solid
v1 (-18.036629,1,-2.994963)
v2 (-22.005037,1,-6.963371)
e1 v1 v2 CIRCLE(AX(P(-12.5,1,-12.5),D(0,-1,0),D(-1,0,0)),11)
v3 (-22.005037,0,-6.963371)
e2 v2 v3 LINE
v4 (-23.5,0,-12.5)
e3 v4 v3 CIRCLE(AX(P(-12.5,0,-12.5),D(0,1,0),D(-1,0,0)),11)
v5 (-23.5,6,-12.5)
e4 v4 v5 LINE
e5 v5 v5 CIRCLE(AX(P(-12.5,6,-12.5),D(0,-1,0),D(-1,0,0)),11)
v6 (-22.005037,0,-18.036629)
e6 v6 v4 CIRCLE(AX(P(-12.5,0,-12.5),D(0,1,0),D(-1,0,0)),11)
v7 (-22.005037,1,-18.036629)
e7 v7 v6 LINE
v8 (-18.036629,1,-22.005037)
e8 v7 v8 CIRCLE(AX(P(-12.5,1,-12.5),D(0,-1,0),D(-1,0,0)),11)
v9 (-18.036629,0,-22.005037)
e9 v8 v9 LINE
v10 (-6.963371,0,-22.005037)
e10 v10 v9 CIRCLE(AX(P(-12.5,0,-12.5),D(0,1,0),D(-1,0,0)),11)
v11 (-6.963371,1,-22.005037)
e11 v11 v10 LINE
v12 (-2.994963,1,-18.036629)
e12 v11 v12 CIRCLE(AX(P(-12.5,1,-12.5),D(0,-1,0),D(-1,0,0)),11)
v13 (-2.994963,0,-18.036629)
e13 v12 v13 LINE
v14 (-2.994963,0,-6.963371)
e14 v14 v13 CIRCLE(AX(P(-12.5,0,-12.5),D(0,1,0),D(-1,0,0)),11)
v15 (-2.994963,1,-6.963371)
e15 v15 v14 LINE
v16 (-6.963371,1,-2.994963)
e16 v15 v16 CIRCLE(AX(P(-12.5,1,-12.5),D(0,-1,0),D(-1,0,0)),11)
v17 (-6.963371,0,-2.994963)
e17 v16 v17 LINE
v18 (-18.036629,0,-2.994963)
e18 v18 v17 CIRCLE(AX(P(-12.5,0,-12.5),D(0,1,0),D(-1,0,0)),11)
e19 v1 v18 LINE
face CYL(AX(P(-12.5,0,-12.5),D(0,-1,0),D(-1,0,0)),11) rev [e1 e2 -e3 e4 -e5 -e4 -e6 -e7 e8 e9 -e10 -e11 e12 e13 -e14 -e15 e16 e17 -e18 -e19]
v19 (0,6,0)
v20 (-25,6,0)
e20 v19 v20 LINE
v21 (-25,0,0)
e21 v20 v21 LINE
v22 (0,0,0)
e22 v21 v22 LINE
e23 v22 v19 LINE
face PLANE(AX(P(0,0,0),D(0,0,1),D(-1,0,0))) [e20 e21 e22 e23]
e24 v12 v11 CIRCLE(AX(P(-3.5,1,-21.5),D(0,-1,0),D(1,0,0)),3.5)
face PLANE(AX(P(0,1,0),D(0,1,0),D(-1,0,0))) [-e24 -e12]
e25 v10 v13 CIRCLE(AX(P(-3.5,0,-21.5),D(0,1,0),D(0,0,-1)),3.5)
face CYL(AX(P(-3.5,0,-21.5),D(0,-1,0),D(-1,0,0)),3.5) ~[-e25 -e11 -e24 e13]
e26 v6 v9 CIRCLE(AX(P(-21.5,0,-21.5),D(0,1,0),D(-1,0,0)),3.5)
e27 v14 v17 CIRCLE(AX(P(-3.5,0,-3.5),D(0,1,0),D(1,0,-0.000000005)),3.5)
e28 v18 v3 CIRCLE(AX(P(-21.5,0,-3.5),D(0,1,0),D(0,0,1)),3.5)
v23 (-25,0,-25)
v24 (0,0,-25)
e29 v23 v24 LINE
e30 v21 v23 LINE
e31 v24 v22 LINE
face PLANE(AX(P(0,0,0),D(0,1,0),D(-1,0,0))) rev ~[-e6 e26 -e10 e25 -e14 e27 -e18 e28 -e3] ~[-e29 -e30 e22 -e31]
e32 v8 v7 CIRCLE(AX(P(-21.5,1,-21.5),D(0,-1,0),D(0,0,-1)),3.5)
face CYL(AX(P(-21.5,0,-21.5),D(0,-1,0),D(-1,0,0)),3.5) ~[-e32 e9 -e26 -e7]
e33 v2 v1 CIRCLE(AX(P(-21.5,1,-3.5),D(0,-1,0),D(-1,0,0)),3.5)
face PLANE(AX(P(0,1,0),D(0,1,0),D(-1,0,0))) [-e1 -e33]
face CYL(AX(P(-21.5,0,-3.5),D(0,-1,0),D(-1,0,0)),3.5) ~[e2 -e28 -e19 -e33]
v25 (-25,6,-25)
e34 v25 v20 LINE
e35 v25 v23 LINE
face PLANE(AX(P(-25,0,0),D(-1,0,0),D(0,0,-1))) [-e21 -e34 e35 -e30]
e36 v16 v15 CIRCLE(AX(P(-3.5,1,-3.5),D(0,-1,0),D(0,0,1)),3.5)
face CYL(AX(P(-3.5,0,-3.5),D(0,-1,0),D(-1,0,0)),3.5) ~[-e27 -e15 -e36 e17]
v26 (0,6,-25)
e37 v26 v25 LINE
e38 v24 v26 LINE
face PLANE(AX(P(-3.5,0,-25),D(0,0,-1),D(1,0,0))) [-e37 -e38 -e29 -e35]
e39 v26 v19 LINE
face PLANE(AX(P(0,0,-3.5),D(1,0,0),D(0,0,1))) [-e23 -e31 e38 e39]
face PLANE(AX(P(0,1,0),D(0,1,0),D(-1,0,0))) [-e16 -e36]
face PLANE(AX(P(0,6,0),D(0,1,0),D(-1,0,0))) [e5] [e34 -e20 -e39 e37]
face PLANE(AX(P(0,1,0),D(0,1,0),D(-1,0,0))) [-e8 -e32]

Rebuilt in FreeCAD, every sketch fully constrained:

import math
import FreeCAD as App
import Part
import Sketcher

V = App.Vector
Q = App.Units.Quantity


def add_polygon(sketch, points):
    """Adds a closed chain of lines whose ends are joined by coincident constraints."""
    first, n = sketch.GeometryCount, len(points)
    for a, b in zip(points, points[1:] + points[:1]):
        sketch.addGeometry(Part.LineSegment(App.Vector(*a, 0), App.Vector(*b, 0)), False)
    for i in range(n):
        sketch.addConstraint(Sketcher.Constraint("Coincident", first + i, 2, first + (i + 1) % n, 1))

doc = App.newDocument("Part")
body = doc.addObject("PartDesign::Body", "Body")

# Sketch on XZ plane
sketch1 = body.newObject("Sketcher::SketchObject", "Sketch")
sketch1.AttachmentSupport = (doc.getObject("XZ_Plane"), [""])
sketch1.MapMode = "FlatFace"
add_polygon(sketch1, [(0, 0), (0, -25), (-25, -25), (-25, 0)])  # lines 0-3
sketch1.addGeometry(Part.Circle(V(-12, -12, 0), V(0, 0, 1), 11), False)  # 4
sketch1.addConstraint(Sketcher.Constraint("Vertical", 0))
sketch1.addConstraint(Sketcher.Constraint("Horizontal", 1))
sketch1.addConstraint(Sketcher.Constraint("Vertical", 2))
sketch1.addConstraint(Sketcher.Constraint("Horizontal", 3))
sketch1.addConstraint(Sketcher.Constraint("Coincident", 3, 2, -1, 1))
sketch1.addConstraint(Sketcher.Constraint("Equal", 3, 0))
sketch1.addConstraint(Sketcher.Constraint("Diameter", 4, Q("22 mm")))
sketch1.addConstraint(Sketcher.Constraint("DistanceX", 1, 2, 1, 1, Q("25 mm")))
sketch1.addConstraint(Sketcher.Constraint("DistanceX", 4, 3, -1, 1, Q("12.5 mm")))
sketch1.addConstraint(Sketcher.Constraint("DistanceY", 4, 3, -1, 1, Q("12.5 mm")))
pad1 = body.newObject("PartDesign::Pad", "Pad")
pad1.Profile = sketch1
pad1.Length = 6
pad1.Reversed = True

# Sketch on XZ plane
sketch2 = body.newObject("Sketcher::SketchObject", "Sketch001")
sketch2.AttachmentSupport = (doc.getObject("XZ_Plane"), [""])
sketch2.MapMode = "FlatFace"
sketch2.addGeometry(Part.LineSegment(V(-3.5, 0, 0), V(0, 0, 0)), False)
sketch2.addGeometry(Part.LineSegment(V(0, 0, 0), V(0, -3.5, 0)), False)
sketch2.addGeometry(Part.ArcOfCircle(Part.Circle(V(-3.5, -3.5, 0), V(0, 0, 1), 3.5), math.radians(90), math.radians(360)), False)
sketch2.addGeometry(Part.LineSegment(V(-25, 0, 0), V(-21.5, 0, 0)), False)
sketch2.addGeometry(Part.ArcOfCircle(Part.Circle(V(-21.5, -3.5, 0), V(0, 0, 1), 3.5), math.radians(180), math.radians(450)), False)
sketch2.addGeometry(Part.LineSegment(V(-25, -3.5, 0), V(-25, 0, 0)), False)
sketch2.addGeometry(Part.LineSegment(V(0, -25, 0), V(-3.5, -25, 0)), False)
sketch2.addGeometry(Part.ArcOfCircle(Part.Circle(V(-3.5, -21.5, 0), V(0, 0, 1), 3.5), math.radians(0), math.radians(270)), False)
sketch2.addGeometry(Part.LineSegment(V(0, -21.5, 0), V(0, -25, 0)), False)
sketch2.addGeometry(Part.LineSegment(V(-21.5, -25, 0), V(-25, -25, 0)), False)
sketch2.addGeometry(Part.LineSegment(V(-25, -25, 0), V(-25, -21.5, 0)), False)
sketch2.addGeometry(Part.ArcOfCircle(Part.Circle(V(-21.5, -21.5, 0), V(0, 0, 1), 3.5), math.radians(-90), math.radians(180)), False)
sketch2.addConstraint(Sketcher.Constraint("Coincident", 0, 2, 1, 1))
sketch2.addConstraint(Sketcher.Constraint("Tangent", 1, 2, 2, 2))
sketch2.addConstraint(Sketcher.Constraint("Tangent", 2, 1, 0, 1))
sketch2.addConstraint(Sketcher.Constraint("Tangent", 3, 2, 4, 2))
sketch2.addConstraint(Sketcher.Constraint("Tangent", 4, 1, 5, 1))
sketch2.addConstraint(Sketcher.Constraint("Coincident", 5, 2, 3, 1))
sketch2.addConstraint(Sketcher.Constraint("Tangent", 6, 2, 7, 2))
sketch2.addConstraint(Sketcher.Constraint("Tangent", 7, 1, 8, 1))
sketch2.addConstraint(Sketcher.Constraint("Coincident", 8, 2, 6, 1))
sketch2.addConstraint(Sketcher.Constraint("Coincident", 9, 2, 10, 1))
sketch2.addConstraint(Sketcher.Constraint("Tangent", 10, 2, 11, 2))
sketch2.addConstraint(Sketcher.Constraint("Tangent", 11, 1, 9, 1))
sketch2.addConstraint(Sketcher.Constraint("Horizontal", 0))
sketch2.addConstraint(Sketcher.Constraint("Vertical", 1))
sketch2.addConstraint(Sketcher.Constraint("Horizontal", 3))
sketch2.addConstraint(Sketcher.Constraint("Vertical", 5))
sketch2.addConstraint(Sketcher.Constraint("Horizontal", 6))
sketch2.addConstraint(Sketcher.Constraint("Vertical", 8))
sketch2.addConstraint(Sketcher.Constraint("Horizontal", 9))
sketch2.addConstraint(Sketcher.Constraint("Vertical", 10))
sketch2.addConstraint(Sketcher.Constraint("Coincident", 0, 2, -1, 1))
sketch2.addConstraint(Sketcher.Constraint("Equal", 2, 4))
sketch2.addConstraint(Sketcher.Constraint("Equal", 4, 7))
sketch2.addConstraint(Sketcher.Constraint("Equal", 7, 11))
sketch2.addConstraint(Sketcher.Constraint("PointOnObject", 3, 2, -1))
sketch2.addConstraint(Sketcher.Constraint("PointOnObject", 7, 1, -2))
sketch2.addConstraint(Sketcher.Constraint("Horizontal", 7, 3, 11, 3))
sketch2.addConstraint(Sketcher.Constraint("Vertical", 4, 3, 11, 3))
sketch2.addConstraint(Sketcher.Constraint("Radius", 2, Q("3.5 mm")))
sketch2.addConstraint(Sketcher.Constraint("DistanceX", 4, 1, -1, 1, Q("25 mm")))
sketch2.addConstraint(Sketcher.Constraint("DistanceY", 6, 2, -1, 1, Q("25 mm")))
pad2 = body.newObject("PartDesign::Pad", "Pad001")
pad2.Profile = sketch2
pad2.Length = 1
pad2.Reversed = True

doc.recompute()
